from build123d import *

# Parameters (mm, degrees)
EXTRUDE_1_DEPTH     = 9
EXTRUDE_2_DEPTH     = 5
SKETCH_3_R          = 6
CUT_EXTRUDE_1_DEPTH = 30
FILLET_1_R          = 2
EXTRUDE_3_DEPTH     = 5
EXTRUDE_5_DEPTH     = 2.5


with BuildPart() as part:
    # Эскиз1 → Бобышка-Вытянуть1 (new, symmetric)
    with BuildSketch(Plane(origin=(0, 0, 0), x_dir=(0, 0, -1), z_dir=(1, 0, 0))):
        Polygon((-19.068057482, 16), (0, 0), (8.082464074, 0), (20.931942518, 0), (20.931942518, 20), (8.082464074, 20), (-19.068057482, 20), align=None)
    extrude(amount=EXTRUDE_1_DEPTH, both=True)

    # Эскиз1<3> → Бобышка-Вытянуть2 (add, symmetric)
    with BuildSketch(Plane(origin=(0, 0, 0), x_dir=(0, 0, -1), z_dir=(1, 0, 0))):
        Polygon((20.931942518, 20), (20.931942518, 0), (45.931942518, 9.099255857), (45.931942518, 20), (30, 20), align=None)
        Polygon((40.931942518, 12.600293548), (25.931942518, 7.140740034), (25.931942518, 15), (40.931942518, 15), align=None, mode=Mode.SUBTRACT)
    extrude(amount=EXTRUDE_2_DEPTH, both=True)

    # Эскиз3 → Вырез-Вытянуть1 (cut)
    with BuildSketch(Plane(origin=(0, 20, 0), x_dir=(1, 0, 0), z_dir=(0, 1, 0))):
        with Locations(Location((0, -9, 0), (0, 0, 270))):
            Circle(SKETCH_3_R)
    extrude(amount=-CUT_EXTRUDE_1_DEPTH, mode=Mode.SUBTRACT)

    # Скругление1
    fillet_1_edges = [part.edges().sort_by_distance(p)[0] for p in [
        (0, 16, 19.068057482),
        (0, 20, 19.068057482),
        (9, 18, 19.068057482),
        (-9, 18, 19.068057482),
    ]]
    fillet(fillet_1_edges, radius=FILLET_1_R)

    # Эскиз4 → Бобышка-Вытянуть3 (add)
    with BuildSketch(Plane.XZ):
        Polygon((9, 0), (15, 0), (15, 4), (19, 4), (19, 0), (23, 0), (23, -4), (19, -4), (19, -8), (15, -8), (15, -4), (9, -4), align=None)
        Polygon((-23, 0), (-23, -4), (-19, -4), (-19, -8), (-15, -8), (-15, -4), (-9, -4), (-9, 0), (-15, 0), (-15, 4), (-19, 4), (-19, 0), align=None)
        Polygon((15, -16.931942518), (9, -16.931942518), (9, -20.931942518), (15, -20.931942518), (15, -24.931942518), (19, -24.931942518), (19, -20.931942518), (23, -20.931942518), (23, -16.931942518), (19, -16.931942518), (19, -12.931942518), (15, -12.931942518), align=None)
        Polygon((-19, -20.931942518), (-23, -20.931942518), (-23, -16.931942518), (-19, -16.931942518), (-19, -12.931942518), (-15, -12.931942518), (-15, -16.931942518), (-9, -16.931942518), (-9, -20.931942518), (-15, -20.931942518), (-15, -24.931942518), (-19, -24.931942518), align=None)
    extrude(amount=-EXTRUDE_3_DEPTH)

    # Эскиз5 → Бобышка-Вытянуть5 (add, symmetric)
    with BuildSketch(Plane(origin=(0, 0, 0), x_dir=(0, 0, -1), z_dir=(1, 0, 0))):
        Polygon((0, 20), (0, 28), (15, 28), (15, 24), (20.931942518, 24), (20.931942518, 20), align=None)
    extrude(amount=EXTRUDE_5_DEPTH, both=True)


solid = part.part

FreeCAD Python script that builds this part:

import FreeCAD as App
import Part
import Sketcher

V = App.Vector
Q = App.Units.Quantity


def edges_at(feature, points):
    """Names of the edges that pass closest to the given points."""
    edges = feature.Shape.Edges
    near = lambda p: min(range(len(edges)), key=lambda i: edges[i].distToShape(Part.Vertex(*p))[0])
    return sorted({f"Edge{near(p) + 1}" for p in points})

doc = App.newDocument("Part")
body = doc.addObject("PartDesign::Body", "Body")

# Sketch on YZ plane
sketch1 = body.newObject("Sketcher::SketchObject", "Sketch")
sketch1.AttachmentSupport = (doc.getObject("YZ_Plane"), [""])
sketch1.MapMode = "FlatFace"
sketch1.addGeometry(Part.LineSegment(V(16, 19.1, 0), V(0, 0, 0)), False)
sketch1.addGeometry(Part.LineSegment(V(0, 0, 0), V(0, -20.9, 0)), False)
sketch1.addGeometry(Part.LineSegment(V(0, -20.9, 0), V(20, -20.9, 0)), False)
sketch1.addGeometry(Part.LineSegment(V(20, -20.9, 0), V(20, 19.1, 0)), False)
sketch1.addGeometry(Part.LineSegment(V(20, 19.1, 0), V(16, 19.1, 0)), False)
sketch1.addConstraint(Sketcher.Constraint("Coincident", 0, 2, 1, 1))
sketch1.addConstraint(Sketcher.Constraint("Coincident", 1, 2, 2, 1))
sketch1.addConstraint(Sketcher.Constraint("Coincident", 2, 2, 3, 1))
sketch1.addConstraint(Sketcher.Constraint("Coincident", 3, 2, 4, 1))
sketch1.addConstraint(Sketcher.Constraint("Coincident", 4, 2, 0, 1))
sketch1.addConstraint(Sketcher.Constraint("Vertical", 1))
sketch1.addConstraint(Sketcher.Constraint("Horizontal", 2))
sketch1.addConstraint(Sketcher.Constraint("Vertical", 3))
sketch1.addConstraint(Sketcher.Constraint("Horizontal", 4))
sketch1.addConstraint(Sketcher.Constraint("Coincident", 0, 2, -1, 1))
sketch1.addConstraint(Sketcher.Constraint("DistanceX", 2, 1, 2, 2, Q("20 mm")))
sketch1.addConstraint(Sketcher.Constraint("DistanceX", 4, 2, 4, 1, Q("4 mm")))
sketch1.addConstraint(Sketcher.Constraint("DistanceY", 3, 1, 3, 2, Q("40 mm")))
sketch1.addConstraint(Sketcher.Constraint("Angle", 0, Q("-130 deg")))
pad1 = body.newObject("PartDesign::Pad", "Pad")
pad1.Profile = sketch1
pad1.Length = 18
pad1.Midplane = True

# Sketch on YZ plane
sketch2 = body.newObject("Sketcher::SketchObject", "Sketch001")
sketch2.AttachmentSupport = (doc.getObject("YZ_Plane"), [""])
sketch2.MapMode = "FlatFace"
sketch2.addGeometry(Part.LineSegment(V(20, -20.9, 0), V(0, -20.9, 0)), False)
sketch2.addGeometry(Part.LineSegment(V(0, -20.9, 0), V(9.1, -45.9, 0)), False)
sketch2.addGeometry(Part.LineSegment(V(9.1, -45.9, 0), V(20, -45.9, 0)), False)
sketch2.addGeometry(Part.LineSegment(V(20, -45.9, 0), V(20, -20.9, 0)), False)
sketch2.addGeometry(Part.LineSegment(V(15, -40.9, 0), V(12.6, -40.9, 0)), False)
sketch2.addGeometry(Part.LineSegment(V(12.6, -40.9, 0), V(7.1, -25.9, 0)), False)
sketch2.addGeometry(Part.LineSegment(V(7.1, -25.9, 0), V(15, -25.9, 0)), False)
sketch2.addGeometry(Part.LineSegment(V(15, -25.9, 0), V(15, -40.9, 0)), False)
sketch2.addConstraint(Sketcher.Constraint("Coincident", 0, 2, 1, 1))
sketch2.addConstraint(Sketcher.Constraint("Coincident", 1, 2, 2, 1))
sketch2.addConstraint(Sketcher.Constraint("Coincident", 2, 2, 3, 1))
sketch2.addConstraint(Sketcher.Constraint("Coincident", 3, 2, 0, 1))
sketch2.addConstraint(Sketcher.Constraint("Coincident", 4, 2, 5, 1))
sketch2.addConstraint(Sketcher.Constraint("Coincident", 5, 2, 6, 1))
sketch2.addConstraint(Sketcher.Constraint("Coincident", 6, 2, 7, 1))
sketch2.addConstraint(Sketcher.Constraint("Coincident", 7, 2, 4, 1))
sketch2.addConstraint(Sketcher.Constraint("Horizontal", 0))
sketch2.addConstraint(Sketcher.Constraint("Horizontal", 2))
sketch2.addConstraint(Sketcher.Constraint("Vertical", 3))
sketch2.addConstraint(Sketcher.Constraint("Horizontal", 4))
sketch2.addConstraint(Sketcher.Constraint("Horizontal", 6))
sketch2.addConstraint(Sketcher.Constraint("Vertical", 7))
sketch2.addConstraint(Sketcher.Constraint("PointOnObject", 0, 2, -2))
sketch2.addConstraint(Sketcher.Constraint("Parallel", 1, 5))
sketch2.addConstraint(Sketcher.Constraint("DistanceX", 0, 2, 0, 1, Q("20 mm")))
sketch2.addConstraint(Sketcher.Constraint("DistanceY", 3, 1, 3, 2, Q("25 mm")))
sketch2.addConstraint(Sketcher.Constraint("DistanceY", 7, 2, 7, 1, Q("15 mm")))
sketch2.addConstraint(Sketcher.Constraint("Angle", 1, Q("-70 deg")))
sketch2.addConstraint(Sketcher.Constraint("DistanceX", -1, 1, 6, 2, Q("15 mm")))
sketch2.addConstraint(Sketcher.Constraint("DistanceY", 1, 2, 4, 2, Q("5 mm")))
sketch2.addConstraint(Sketcher.Constraint("DistanceX", 6, 1, 6, 2, Q("7.85926 mm")))
sketch2.addConstraint(Sketcher.Constraint("DistanceY", 0, 2, -1, 1, Q("20.931943 mm")))
pad2 = body.newObject("PartDesign::Pad", "Pad001")
pad2.Profile = sketch2
pad2.Length = 10
pad2.Midplane = True

# Sketch on XZ plane
sketch3 = body.newObject("Sketcher::SketchObject", "Sketch002")
sketch3.AttachmentSupport = (doc.getObject("XZ_Plane"), [""])
sketch3.MapMode = "FlatFace"
sketch3.AttachmentOffset = App.Placement(V(0, 0, -20), App.Rotation())
sketch3.addGeometry(Part.Circle(V(0, 9, 0), V(0, 0, 1), 6), False)
sketch3.addConstraint(Sketcher.Constraint("PointOnObject", 0, 3, -2))
sketch3.addConstraint(Sketcher.Constraint("Diameter", 0, Q("12 mm")))
sketch3.addConstraint(Sketcher.Constraint("DistanceY", -1, 1, 0, 3, Q("9 mm")))
pocket1 = body.newObject("PartDesign::Pocket", "Pocket")
pocket1.Profile = sketch3
pocket1.Length = 30
pocket1.Reversed = True
doc.recompute()

fillet = body.newObject("PartDesign::Fillet", "Fillet")
fillet.Base = (pocket1, edges_at(pocket1, [
    (0, 16, 19.068),
    (0, 20, 19.068),
    (9, 18, 19.068),
    (-9, 18, 19.068),
]))
fillet.Radius = 2

# Sketch on XZ plane
sketch4 = body.newObject("Sketcher::SketchObject", "Sketch003")
sketch4.AttachmentSupport = (doc.getObject("XZ_Plane"), [""])
sketch4.MapMode = "FlatFace"
sketch4.addGeometry(Part.LineSegment(V(15, 0, 0), V(9, 0, 0)), False)
sketch4.addGeometry(Part.LineSegment(V(9, 0, 0), V(9, -4, 0)), False)
sketch4.addGeometry(Part.LineSegment(V(9, -4, 0), V(15, -4, 0)), False)
sketch4.addGeometry(Part.LineSegment(V(15, -4, 0), V(15, -8, 0)), False)
sketch4.addGeometry(Part.LineSegment(V(15, -8, 0), V(19, -8, 0)), False)
sketch4.addGeometry(Part.LineSegment(V(19, -8, 0), V(19, -4, 0)), False)
sketch4.addGeometry(Part.LineSegment(V(19, -4, 0), V(23, -4, 0)), False)
sketch4.addGeometry(Part.LineSegment(V(23, -4, 0), V(23, 0, 0)), False)
sketch4.addGeometry(Part.LineSegment(V(23, 0, 0), V(19, 0, 0)), False)
sketch4.addGeometry(Part.LineSegment(V(19, 0, 0), V(19, 4, 0)), False)
sketch4.addGeometry(Part.LineSegment(V(19, 4, 0), V(15, 4, 0)), False)
sketch4.addGeometry(Part.LineSegment(V(15, 4, 0), V(15, 0, 0)), False)
sketch4.addGeometry(Part.LineSegment(V(-23, 0, 0), V(-23, -4, 0)), False)
sketch4.addGeometry(Part.LineSegment(V(-23, -4, 0), V(-19, -4, 0)), False)
sketch4.addGeometry(Part.LineSegment(V(-19, -4, 0), V(-19, -8, 0)), False)
sketch4.addGeometry(Part.LineSegment(V(-19, -8, 0), V(-15, -8, 0)), False)
sketch4.addGeometry(Part.LineSegment(V(-15, -8, 0), V(-15, -4, 0)), False)
sketch4.addGeometry(Part.LineSegment(V(-15, -4, 0), V(-9, -4, 0)), False)
sketch4.addGeometry(Part.LineSegment(V(-9, -4, 0), V(-9, 0, 0)), False)
sketch4.addGeometry(Part.LineSegment(V(-9, 0, 0), V(-15, 0, 0)), False)
sketch4.addGeometry(Part.LineSegment(V(-15, 0, 0), V(-15, 4, 0)), False)
sketch4.addGeometry(Part.LineSegment(V(-15, 4, 0), V(-19, 4, 0)), False)
sketch4.addGeometry(Part.LineSegment(V(-19, 4, 0), V(-19, 0, 0)), False)
sketch4.addGeometry(Part.LineSegment(V(-19, 0, 0), V(-23, 0, 0)), False)
sketch4.addGeometry(Part.LineSegment(V(15, -16.9, 0), V(9, -16.9, 0)), False)
sketch4.addGeometry(Part.LineSegment(V(9, -16.9, 0), V(9, -20.9, 0)), False)
sketch4.addGeometry(Part.LineSegment(V(9, -20.9, 0), V(15, -20.9, 0)), False)
sketch4.addGeometry(Part.LineSegment(V(15, -20.9, 0), V(15, -24.9, 0)), False)
sketch4.addGeometry(Part.LineSegment(V(15, -24.9, 0), V(19, -24.9, 0)), False)
sketch4.addGeometry(Part.LineSegment(V(19, -24.9, 0), V(19, -20.9, 0)), False)
sketch4.addGeometry(Part.LineSegment(V(19, -20.9, 0), V(23, -20.9, 0)), False)
sketch4.addGeometry(Part.LineSegment(V(23, -20.9, 0), V(23, -16.9, 0)), False)
sketch4.addGeometry(Part.LineSegment(V(23, -16.9, 0), V(19, -16.9, 0)), False)
sketch4.addGeometry(Part.LineSegment(V(19, -16.9, 0), V(19, -12.9, 0)), False)
sketch4.addGeometry(Part.LineSegment(V(19, -12.9, 0), V(15, -12.9, 0)), False)
sketch4.addGeometry(Part.LineSegment(V(15, -12.9, 0), V(15, -16.9, 0)), False)
sketch4.addGeometry(Part.LineSegment(V(-23, -20.9, 0), V(-19, -20.9, 0)), False)
sketch4.addGeometry(Part.LineSegment(V(-19, -20.9, 0), V(-19, -24.9, 0)), False)
sketch4.addGeometry(Part.LineSegment(V(-19, -24.9, 0), V(-15, -24.9, 0)), False)
sketch4.addGeometry(Part.LineSegment(V(-15, -24.9, 0), V(-15, -20.9, 0)), False)
sketch4.addGeometry(Part.LineSegment(V(-15, -20.9, 0), V(-9, -20.9, 0)), False)
sketch4.addGeometry(Part.LineSegment(V(-9, -20.9, 0), V(-9, -16.9, 0)), False)
sketch4.addGeometry(Part.LineSegment(V(-9, -16.9, 0), V(-15, -16.9, 0)), False)
sketch4.addGeometry(Part.LineSegment(V(-15, -16.9, 0), V(-15, -12.9, 0)), False)
sketch4.addGeometry(Part.LineSegment(V(-15, -12.9, 0), V(-19, -12.9, 0)), False)
sketch4.addGeometry(Part.LineSegment(V(-19, -12.9, 0), V(-19, -16.9, 0)), False)
sketch4.addGeometry(Part.LineSegment(V(-19, -16.9, 0), V(-23, -16.9, 0)), False)
sketch4.addGeometry(Part.LineSegment(V(-23, -16.9, 0), V(-23, -20.9, 0)), False)
sketch4.addConstraint(Sketcher.Constraint("Coincident", 0, 2, 1, 1))
sketch4.addConstraint(Sketcher.Constraint("Coincident", 1, 2, 2, 1))
sketch4.addConstraint(Sketcher.Constraint("Coincident", 2, 2, 3, 1))
sketch4.addConstraint(Sketcher.Constraint("Coincident", 3, 2, 4, 1))
sketch4.addConstraint(Sketcher.Constraint("Coincident", 4, 2, 5, 1))
sketch4.addConstraint(Sketcher.Constraint("Coincident", 5, 2, 6, 1))
sketch4.addConstraint(Sketcher.Constraint("Coincident", 6, 2, 7, 1))
sketch4.addConstraint(Sketcher.Constraint("Coincident", 7, 2, 8, 1))
sketch4.addConstraint(Sketcher.Constraint("Coincident", 8, 2, 9, 1))
sketch4.addConstraint(Sketcher.Constraint("Coincident", 9, 2, 10, 1))
sketch4.addConstraint(Sketcher.Constraint("Coincident", 10, 2, 11, 1))
sketch4.addConstraint(Sketcher.Constraint("Coincident", 11, 2, 0, 1))
sketch4.addConstraint(Sketcher.Constraint("Coincident", 12, 2, 13, 1))
sketch4.addConstraint(Sketcher.Constraint("Coincident", 13, 2, 14, 1))
sketch4.addConstraint(Sketcher.Constraint("Coincident", 14, 2, 15, 1))
sketch4.addConstraint(Sketcher.Constraint("Coincident", 15, 2, 16, 1))
sketch4.addConstraint(Sketcher.Constraint("Coincident", 16, 2, 17, 1))
sketch4.addConstraint(Sketcher.Constraint("Coincident", 17, 2, 18, 1))
sketch4.addConstraint(Sketcher.Constraint("Coincident", 18, 2, 19, 1))
sketch4.addConstraint(Sketcher.Constraint("Coincident", 19, 2, 20, 1))
sketch4.addConstraint(Sketcher.Constraint("Coincident", 20, 2, 21, 1))
sketch4.addConstraint(Sketcher.Constraint("Coincident", 21, 2, 22, 1))
sketch4.addConstraint(Sketcher.Constraint("Coincident", 22, 2, 23, 1))
sketch4.addConstraint(Sketcher.Constraint("Coincident", 23, 2, 12, 1))
sketch4.addConstraint(Sketcher.Constraint("Coincident", 24, 2, 25, 1))
sketch4.addConstraint(Sketcher.Constraint("Coincident", 25, 2, 26, 1))
sketch4.addConstraint(Sketcher.Constraint("Coincident", 26, 2, 27, 1))
sketch4.addConstraint(Sketcher.Constraint("Coincident", 27, 2, 28, 1))
sketch4.addConstraint(Sketcher.Constraint("Coincident", 28, 2, 29, 1))
sketch4.addConstraint(Sketcher.Constraint("Coincident", 29, 2, 30, 1))
sketch4.addConstraint(Sketcher.Constraint("Coincident", 30, 2, 31, 1))
sketch4.addConstraint(Sketcher.Constraint("Coincident", 31, 2, 32, 1))
sketch4.addConstraint(Sketcher.Constraint("Coincident", 32, 2, 33, 1))
sketch4.addConstraint(Sketcher.Constraint("Coincident", 33, 2, 34, 1))
sketch4.addConstraint(Sketcher.Constraint("Coincident", 34, 2, 35, 1))
sketch4.addConstraint(Sketcher.Constraint("Coincident", 35, 2, 24, 1))
sketch4.addConstraint(Sketcher.Constraint("Coincident", 36, 2, 37, 1))
sketch4.addConstraint(Sketcher.Constraint("Coincident", 37, 2, 38, 1))
sketch4.addConstraint(Sketcher.Constraint("Coincident", 38, 2, 39, 1))
sketch4.addConstraint(Sketcher.Constraint("Coincident", 39, 2, 40, 1))
sketch4.addConstraint(Sketcher.Constraint("Coincident", 40, 2, 41, 1))
sketch4.addConstraint(Sketcher.Constraint("Coincident", 41, 2, 42, 1))
sketch4.addConstraint(Sketcher.Constraint("Coincident", 42, 2, 43, 1))
sketch4.addConstraint(Sketcher.Constraint("Coincident", 43, 2, 44, 1))
sketch4.addConstraint(Sketcher.Constraint("Coincident", 44, 2, 45, 1))
sketch4.addConstraint(Sketcher.Constraint("Coincident", 45, 2, 46, 1))
sketch4.addConstraint(Sketcher.Constraint("Coincident", 46, 2, 47, 1))
sketch4.addConstraint(Sketcher.Constraint("Coincident", 47, 2, 36, 1))
sketch4.addConstraint(Sketcher.Constraint("Horizontal", 0))
sketch4.addConstraint(Sketcher.Constraint("Vertical", 1))
sketch4.addConstraint(Sketcher.Constraint("Horizontal", 2))
sketch4.addConstraint(Sketcher.Constraint("Vertical", 3))
sketch4.addConstraint(Sketcher.Constraint("Horizontal", 4))
sketch4.addConstraint(Sketcher.Constraint("Vertical", 5))
sketch4.addConstraint(Sketcher.Constraint("Horizontal", 6))
sketch4.addConstraint(Sketcher.Constraint("Vertical", 7))
sketch4.addConstraint(Sketcher.Constraint("Horizontal", 8))
sketch4.addConstraint(Sketcher.Constraint("Vertical", 9))
sketch4.addConstraint(Sketcher.Constraint("Horizontal", 10))
sketch4.addConstraint(Sketcher.Constraint("Vertical", 11))
sketch4.addConstraint(Sketcher.Constraint("Vertical", 12))
sketch4.addConstraint(Sketcher.Constraint("Horizontal", 13))
sketch4.addConstraint(Sketcher.Constraint("Vertical", 14))
sketch4.addConstraint(Sketcher.Constraint("Horizontal", 15))
sketch4.addConstraint(Sketcher.Constraint("Vertical", 16))
sketch4.addConstraint(Sketcher.Constraint("Horizontal", 17))
sketch4.addConstraint(Sketcher.Constraint("Vertical", 18))
sketch4.addConstraint(Sketcher.Constraint("Horizontal", 19))
sketch4.addConstraint(Sketcher.Constraint("Vertical", 20))
sketch4.addConstraint(Sketcher.Constraint("Horizontal", 21))
sketch4.addConstraint(Sketcher.Constraint("Vertical", 22))
sketch4.addConstraint(Sketcher.Constraint("Horizontal", 23))
sketch4.addConstraint(Sketcher.Constraint("Horizontal", 24))
sketch4.addConstraint(Sketcher.Constraint("Vertical", 25))
sketch4.addConstraint(Sketcher.Constraint("Horizontal", 26))
sketch4.addConstraint(Sketcher.Constraint("Vertical", 27))
sketch4.addConstraint(Sketcher.Constraint("Horizontal", 28))
sketch4.addConstraint(Sketcher.Constraint("Vertical", 29))
sketch4.addConstraint(Sketcher.Constraint("Horizontal", 30))
sketch4.addConstraint(Sketcher.Constraint("Vertical", 31))
sketch4.addConstraint(Sketcher.Constraint("Horizontal", 32))
sketch4.addConstraint(Sketcher.Constraint("Vertical", 33))
sketch4.addConstraint(Sketcher.Constraint("Horizontal", 34))
sketch4.addConstraint(Sketcher.Constraint("Vertical", 35))
sketch4.addConstraint(Sketcher.Constraint("Horizontal", 36))
sketch4.addConstraint(Sketcher.Constraint("Vertical", 37))
sketch4.addConstraint(Sketcher.Constraint("Horizontal", 38))
sketch4.addConstraint(Sketcher.Constraint("Vertical", 39))
sketch4.addConstraint(Sketcher.Constraint("Horizontal", 40))
sketch4.addConstraint(Sketcher.Constraint("Vertical", 41))
sketch4.addConstraint(Sketcher.Constraint("Horizontal", 42))
sketch4.addConstraint(Sketcher.Constraint("Vertical", 43))
sketch4.addConstraint(Sketcher.Constraint("Horizontal", 44))
sketch4.addConstraint(Sketcher.Constraint("Vertical", 45))
sketch4.addConstraint(Sketcher.Constraint("Horizontal", 46))
sketch4.addConstraint(Sketcher.Constraint("Vertical", 47))
sketch4.addConstraint(Sketcher.Constraint("Symmetric", 9, 2, 13, 2, -1, 1))
sketch4.addConstraint(Sketcher.Constraint("Symmetric", 10, 2, 16, 2, -1, 1))
sketch4.addConstraint(Sketcher.Constraint("Symmetric", 0, 2, 18, 2, -1, 1))
sketch4.addConstraint(Sketcher.Constraint("Symmetric", 2, 2, 20, 2, -1, 1))
sketch4.addConstraint(Sketcher.Constraint("Symmetric", 5, 2, 21, 2, -1, 1))
sketch4.addConstraint(Sketcher.Constraint("Symmetric", 8, 2, 22, 2, -1, 1))
sketch4.addConstraint(Sketcher.Constraint("Symmetric", 6, 2, 12, 2, -2))
sketch4.addConstraint(Sketcher.Constraint("Symmetric", 3, 2, 15, 2, -2))
sketch4.addConstraint(Sketcher.Constraint("Symmetric", 29, 2, 36, 2, -2))
sketch4.addConstraint(Sketcher.Constraint("Symmetric", 27, 2, 38, 2, -2))
sketch4.addConstraint(Sketcher.Constraint("Symmetric", 25, 2, 40, 2, -2))
sketch4.addConstraint(Sketcher.Constraint("Symmetric", 35, 2, 42, 2, -2))
sketch4.addConstraint(Sketcher.Constraint("Symmetric", 33, 2, 44, 2, -2))
sketch4.addConstraint(Sketcher.Constraint("Symmetric", 31, 2, 46, 2, -2))
sketch4.addConstraint(Sketcher.Constraint("PointOnObject", 0, 2, -1))
sketch4.addConstraint(Sketcher.Constraint("PointOnObject", 7, 2, -1))
sketch4.addConstraint(Sketcher.Constraint("Horizontal", 26, 2, 29, 2))
sketch4.addConstraint(Sketcher.Constraint("Horizontal", 24, 2, 31, 2))
sketch4.addConstraint(Sketcher.Constraint("Vertical", 1, 2, 24, 2))
sketch4.addConstraint(Sketcher.Constraint("Vertical", 11, 2, 26, 2))
sketch4.addConstraint(Sketcher.Constraint("Vertical", 9, 2, 28, 2))
sketch4.addConstraint(Sketcher.Constraint("Vertical", 7, 2, 30, 2))
sketch4.addConstraint(Sketcher.Constraint("Vertical", 29, 2, 32, 2))
sketch4.addConstraint(Sketcher.Constraint("Vertical", 27, 2, 34, 2))
sketch4.addConstraint(Sketcher.Constraint("Equal", 4, 6))
sketch4.addConstraint(Sketcher.Constraint("Equal", 46, 1))
sketch4.addConstraint(Sketcher.Constraint("Equal", 1, 3))
sketch4.addConstraint(Sketcher.Constraint("Equal", 22, 25))
sketch4.addConstraint(Sketcher.Constraint("Equal", 25, 27))
sketch4.addConstraint(Sketcher.Constraint("Equal", 31, 33))
sketch4.addConstraint(Sketcher.Constraint("DistanceX", 0, 2, 0, 1, Q("6 mm")))
sketch4.addConstraint(Sketcher.Constraint("DistanceX", 4, 1, 4, 2, Q("4 mm")))
sketch4.addConstraint(Sketcher.Constraint("DistanceX", -1, 1, 0, 2, Q("9 mm")))
sketch4.addConstraint(Sketcher.Constraint("DistanceY", 24, 2, -1, 1, Q("16.931943 mm")))
pad3 = body.newObject("PartDesign::Pad", "Pad002")
pad3.Profile = sketch4
pad3.Length = 5
pad3.Reversed = True

# Sketch on YZ plane
sketch5 = body.newObject("Sketcher::SketchObject", "Sketch004")
sketch5.AttachmentSupport = (doc.getObject("YZ_Plane"), [""])
sketch5.MapMode = "FlatFace"
sketch5.addGeometry(Part.LineSegment(V(28, 0, 0), V(20, 0, 0)), False)
sketch5.addGeometry(Part.LineSegment(V(20, 0, 0), V(20, -20.9, 0)), False)
sketch5.addGeometry(Part.LineSegment(V(20, -20.9, 0), V(24, -20.9, 0)), False)
sketch5.addGeometry(Part.LineSegment(V(24, -20.9, 0), V(24, -15, 0)), False)
sketch5.addGeometry(Part.LineSegment(V(24, -15, 0), V(28, -15, 0)), False)
sketch5.addGeometry(Part.LineSegment(V(28, -15, 0), V(28, 0, 0)), False)
sketch5.addConstraint(Sketcher.Constraint("Coincident", 0, 2, 1, 1))
sketch5.addConstraint(Sketcher.Constraint("Coincident", 1, 2, 2, 1))
sketch5.addConstraint(Sketcher.Constraint("Coincident", 2, 2, 3, 1))
sketch5.addConstraint(Sketcher.Constraint("Coincident", 3, 2, 4, 1))
sketch5.addConstraint(Sketcher.Constraint("Coincident", 4, 2, 5, 1))
sketch5.addConstraint(Sketcher.Constraint("Coincident", 5, 2, 0, 1))
sketch5.addConstraint(Sketcher.Constraint("Horizontal", 0))
sketch5.addConstraint(Sketcher.Constraint("Vertical", 1))
sketch5.addConstraint(Sketcher.Constraint("Horizontal", 2))
sketch5.addConstraint(Sketcher.Constraint("Vertical", 3))
sketch5.addConstraint(Sketcher.Constraint("Horizontal", 4))
sketch5.addConstraint(Sketcher.Constraint("Vertical", 5))
sketch5.addConstraint(Sketcher.Constraint("PointOnObject", 0, 2, -1))
sketch5.addConstraint(Sketcher.Constraint("Equal", 2, 4))
sketch5.addConstraint(Sketcher.Constraint("DistanceX", 0, 2, 0, 1, Q("8 mm")))
sketch5.addConstraint(Sketcher.Constraint("DistanceY", 5, 1, 5, 2, Q("15 mm")))
sketch5.addConstraint(Sketcher.Constraint("DistanceX", -1, 1, 0, 2, Q("20 mm")))
sketch5.addConstraint(Sketcher.Constraint("DistanceY", 1, 2, 1, 1, Q("20.931943 mm")))
pad4 = body.newObject("PartDesign::Pad", "Pad003")
pad4.Profile = sketch5
pad4.Length = 5
pad4.Midplane = True

doc.recompute()
